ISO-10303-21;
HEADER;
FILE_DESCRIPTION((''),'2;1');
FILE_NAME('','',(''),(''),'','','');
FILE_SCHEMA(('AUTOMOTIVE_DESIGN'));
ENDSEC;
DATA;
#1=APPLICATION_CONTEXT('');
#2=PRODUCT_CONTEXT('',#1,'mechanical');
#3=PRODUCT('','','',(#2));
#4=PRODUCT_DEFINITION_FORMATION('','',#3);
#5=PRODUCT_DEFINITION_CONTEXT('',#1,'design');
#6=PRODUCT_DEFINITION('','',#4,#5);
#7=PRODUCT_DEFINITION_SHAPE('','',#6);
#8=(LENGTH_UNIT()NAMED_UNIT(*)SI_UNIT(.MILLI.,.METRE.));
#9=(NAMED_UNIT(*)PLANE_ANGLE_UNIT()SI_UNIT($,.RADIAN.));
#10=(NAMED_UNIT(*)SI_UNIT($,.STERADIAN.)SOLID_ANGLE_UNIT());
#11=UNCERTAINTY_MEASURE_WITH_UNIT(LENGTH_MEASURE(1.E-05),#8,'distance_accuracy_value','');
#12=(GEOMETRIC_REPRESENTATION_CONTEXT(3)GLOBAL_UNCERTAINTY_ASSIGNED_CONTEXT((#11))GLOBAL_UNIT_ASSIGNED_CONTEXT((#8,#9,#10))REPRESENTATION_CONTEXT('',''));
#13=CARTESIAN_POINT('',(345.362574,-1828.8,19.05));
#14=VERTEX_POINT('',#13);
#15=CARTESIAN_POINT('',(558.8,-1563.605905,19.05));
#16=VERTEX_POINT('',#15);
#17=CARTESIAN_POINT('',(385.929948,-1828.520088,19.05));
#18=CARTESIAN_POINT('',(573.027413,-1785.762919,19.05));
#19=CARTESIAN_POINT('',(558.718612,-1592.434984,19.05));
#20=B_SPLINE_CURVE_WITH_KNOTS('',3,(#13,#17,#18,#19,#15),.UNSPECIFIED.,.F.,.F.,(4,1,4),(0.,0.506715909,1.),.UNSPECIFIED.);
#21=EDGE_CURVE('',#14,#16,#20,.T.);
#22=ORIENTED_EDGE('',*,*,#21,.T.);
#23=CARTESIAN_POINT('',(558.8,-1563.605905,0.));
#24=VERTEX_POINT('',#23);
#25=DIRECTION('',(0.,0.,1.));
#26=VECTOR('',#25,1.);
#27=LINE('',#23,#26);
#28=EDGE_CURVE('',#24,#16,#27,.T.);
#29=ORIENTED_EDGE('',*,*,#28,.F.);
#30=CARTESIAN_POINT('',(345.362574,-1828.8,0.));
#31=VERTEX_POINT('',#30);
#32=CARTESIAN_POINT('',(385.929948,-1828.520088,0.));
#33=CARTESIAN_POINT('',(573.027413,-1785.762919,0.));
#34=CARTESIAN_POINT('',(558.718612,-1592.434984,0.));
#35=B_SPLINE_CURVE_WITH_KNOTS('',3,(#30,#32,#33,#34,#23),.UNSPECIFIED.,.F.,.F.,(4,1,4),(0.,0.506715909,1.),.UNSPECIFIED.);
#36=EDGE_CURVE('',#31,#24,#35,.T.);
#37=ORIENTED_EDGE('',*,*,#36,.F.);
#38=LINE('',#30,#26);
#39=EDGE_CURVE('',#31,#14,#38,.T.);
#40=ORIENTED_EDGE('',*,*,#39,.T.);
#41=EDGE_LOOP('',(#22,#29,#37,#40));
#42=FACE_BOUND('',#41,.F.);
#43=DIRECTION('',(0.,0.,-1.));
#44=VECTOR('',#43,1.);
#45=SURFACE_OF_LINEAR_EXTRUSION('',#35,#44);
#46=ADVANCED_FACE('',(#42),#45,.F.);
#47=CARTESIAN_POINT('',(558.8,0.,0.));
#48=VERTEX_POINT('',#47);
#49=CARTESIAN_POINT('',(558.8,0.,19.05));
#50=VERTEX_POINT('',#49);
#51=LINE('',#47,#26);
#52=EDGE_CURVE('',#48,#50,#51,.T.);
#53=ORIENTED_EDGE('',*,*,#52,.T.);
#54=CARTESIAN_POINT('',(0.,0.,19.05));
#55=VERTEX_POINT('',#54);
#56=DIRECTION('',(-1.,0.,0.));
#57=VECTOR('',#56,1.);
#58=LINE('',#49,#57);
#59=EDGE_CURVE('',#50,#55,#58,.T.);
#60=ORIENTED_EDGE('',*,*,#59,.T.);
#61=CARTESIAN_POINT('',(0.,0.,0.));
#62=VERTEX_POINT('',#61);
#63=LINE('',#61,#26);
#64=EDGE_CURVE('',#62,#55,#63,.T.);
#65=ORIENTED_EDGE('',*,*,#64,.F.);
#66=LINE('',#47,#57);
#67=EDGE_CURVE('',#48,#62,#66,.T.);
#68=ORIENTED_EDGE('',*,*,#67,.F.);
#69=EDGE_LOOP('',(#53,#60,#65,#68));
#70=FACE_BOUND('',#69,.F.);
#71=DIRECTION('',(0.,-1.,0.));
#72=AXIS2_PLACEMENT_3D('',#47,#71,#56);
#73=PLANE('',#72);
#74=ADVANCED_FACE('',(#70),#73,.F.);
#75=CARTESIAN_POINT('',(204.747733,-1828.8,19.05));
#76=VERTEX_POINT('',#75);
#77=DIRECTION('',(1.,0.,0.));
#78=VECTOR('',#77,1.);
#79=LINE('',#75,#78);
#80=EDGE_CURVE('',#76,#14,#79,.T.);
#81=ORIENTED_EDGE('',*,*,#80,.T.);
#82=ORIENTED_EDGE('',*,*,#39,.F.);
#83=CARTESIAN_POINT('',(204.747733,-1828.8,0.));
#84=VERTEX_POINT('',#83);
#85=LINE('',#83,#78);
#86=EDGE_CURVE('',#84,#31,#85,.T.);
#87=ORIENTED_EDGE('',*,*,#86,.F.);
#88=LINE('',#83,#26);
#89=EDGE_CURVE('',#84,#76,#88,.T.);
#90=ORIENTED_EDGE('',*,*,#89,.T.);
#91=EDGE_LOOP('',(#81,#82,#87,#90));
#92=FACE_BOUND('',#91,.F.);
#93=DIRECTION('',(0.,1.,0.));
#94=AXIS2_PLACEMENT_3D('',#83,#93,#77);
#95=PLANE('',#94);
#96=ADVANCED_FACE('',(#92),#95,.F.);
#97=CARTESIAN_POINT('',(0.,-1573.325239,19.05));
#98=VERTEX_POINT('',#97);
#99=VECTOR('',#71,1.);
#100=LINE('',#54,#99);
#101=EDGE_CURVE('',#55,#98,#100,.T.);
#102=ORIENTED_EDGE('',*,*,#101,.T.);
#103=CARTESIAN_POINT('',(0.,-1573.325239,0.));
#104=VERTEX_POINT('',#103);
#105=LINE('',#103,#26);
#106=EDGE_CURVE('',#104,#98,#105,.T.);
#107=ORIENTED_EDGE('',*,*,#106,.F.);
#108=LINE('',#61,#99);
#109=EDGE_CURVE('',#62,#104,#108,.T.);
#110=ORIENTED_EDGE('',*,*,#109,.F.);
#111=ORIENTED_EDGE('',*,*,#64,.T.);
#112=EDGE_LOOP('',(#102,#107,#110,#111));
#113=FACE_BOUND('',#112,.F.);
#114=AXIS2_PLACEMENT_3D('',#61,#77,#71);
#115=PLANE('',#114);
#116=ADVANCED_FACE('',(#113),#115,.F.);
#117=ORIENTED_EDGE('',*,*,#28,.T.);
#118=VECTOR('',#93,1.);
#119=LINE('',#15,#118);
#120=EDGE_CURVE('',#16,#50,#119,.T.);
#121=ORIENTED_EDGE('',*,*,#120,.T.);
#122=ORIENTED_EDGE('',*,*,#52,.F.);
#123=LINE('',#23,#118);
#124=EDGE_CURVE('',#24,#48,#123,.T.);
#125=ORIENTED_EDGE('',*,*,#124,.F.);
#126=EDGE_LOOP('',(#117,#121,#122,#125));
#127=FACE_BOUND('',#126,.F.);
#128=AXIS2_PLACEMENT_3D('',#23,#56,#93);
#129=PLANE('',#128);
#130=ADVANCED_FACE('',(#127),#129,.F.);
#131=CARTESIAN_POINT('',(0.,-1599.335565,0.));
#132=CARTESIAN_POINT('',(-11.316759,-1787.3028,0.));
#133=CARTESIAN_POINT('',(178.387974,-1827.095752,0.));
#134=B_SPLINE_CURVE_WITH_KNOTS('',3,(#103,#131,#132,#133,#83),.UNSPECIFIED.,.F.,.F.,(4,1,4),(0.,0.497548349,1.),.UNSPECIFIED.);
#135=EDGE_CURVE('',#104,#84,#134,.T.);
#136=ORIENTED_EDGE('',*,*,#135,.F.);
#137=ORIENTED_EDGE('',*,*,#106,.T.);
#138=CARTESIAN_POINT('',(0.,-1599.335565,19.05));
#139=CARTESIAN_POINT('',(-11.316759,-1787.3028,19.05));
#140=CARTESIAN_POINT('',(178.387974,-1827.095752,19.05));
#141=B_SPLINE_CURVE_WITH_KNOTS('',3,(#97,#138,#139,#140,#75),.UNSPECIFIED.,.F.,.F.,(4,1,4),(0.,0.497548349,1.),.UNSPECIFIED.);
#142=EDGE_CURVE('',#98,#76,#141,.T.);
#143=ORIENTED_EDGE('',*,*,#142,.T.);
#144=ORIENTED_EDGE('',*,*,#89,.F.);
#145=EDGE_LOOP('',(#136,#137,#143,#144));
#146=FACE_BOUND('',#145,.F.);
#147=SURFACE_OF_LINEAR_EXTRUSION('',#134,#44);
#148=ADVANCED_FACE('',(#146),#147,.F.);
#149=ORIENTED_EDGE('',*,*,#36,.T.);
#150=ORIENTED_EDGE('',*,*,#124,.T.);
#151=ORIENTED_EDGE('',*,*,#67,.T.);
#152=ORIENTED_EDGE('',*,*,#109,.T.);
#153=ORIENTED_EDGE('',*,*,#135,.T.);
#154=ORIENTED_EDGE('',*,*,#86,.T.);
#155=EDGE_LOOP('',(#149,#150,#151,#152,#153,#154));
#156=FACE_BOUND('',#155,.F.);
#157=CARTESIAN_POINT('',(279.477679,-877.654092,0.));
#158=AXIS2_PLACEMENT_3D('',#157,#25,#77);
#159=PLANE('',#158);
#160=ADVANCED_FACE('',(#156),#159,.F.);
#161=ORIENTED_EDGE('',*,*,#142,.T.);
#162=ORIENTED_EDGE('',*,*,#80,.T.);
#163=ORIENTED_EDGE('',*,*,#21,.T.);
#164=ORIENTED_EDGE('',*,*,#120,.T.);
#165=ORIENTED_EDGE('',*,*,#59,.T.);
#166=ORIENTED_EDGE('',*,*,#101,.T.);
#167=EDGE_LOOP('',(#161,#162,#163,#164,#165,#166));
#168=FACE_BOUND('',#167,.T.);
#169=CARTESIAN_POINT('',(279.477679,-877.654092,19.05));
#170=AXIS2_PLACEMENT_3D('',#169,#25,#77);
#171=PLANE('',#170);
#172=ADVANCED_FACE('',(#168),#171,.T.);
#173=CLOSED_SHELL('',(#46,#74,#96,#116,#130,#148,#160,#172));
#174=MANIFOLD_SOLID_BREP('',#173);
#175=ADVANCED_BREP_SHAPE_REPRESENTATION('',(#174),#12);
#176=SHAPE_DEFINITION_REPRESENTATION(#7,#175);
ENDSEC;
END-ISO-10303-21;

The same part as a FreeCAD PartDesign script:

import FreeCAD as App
import Part
import Sketcher
from FreeCAD import Vector

doc = App.newDocument("Part")
params = doc.addObject("Spreadsheet::Sheet", "Params")
for row, (alias, value) in enumerate([
    ("pad1_length", "0.75 in"),
], start=1):
    params.set(f"A{row}", alias)
    params.set(f"B{row}", "=" + value)
    params.setAlias(f"B{row}", alias)

body = doc.addObject("PartDesign::Body", "Body")

# Sketch on XY plane
sketch1 = body.newObject("Sketcher::SketchObject", "Sketch")
sketch1.AttachmentSupport = (doc.getObject("XY_Plane"), [""])
sketch1.MapMode = "FlatFace"
sketch1.addGeometry([
    Part.LineSegment(Vector(558.8, 0, 0), Vector(0, 0, 0)),  # 0
    Part.LineSegment(Vector(0, 0, 0), Vector(0, -1573.325239, 0)),  # 1
    Part.BSplineCurve([Vector(0, -1573.325239, 0), Vector(0, -1599.335565, 0), Vector(-11.316759, -1787.3028, 0), Vector(178.387974, -1827.095752, 0), Vector(204.747733, -1828.8, 0)], [4, 1, 4], [0, 0.497548349, 1], False, 3, [1, 1, 1, 1, 1], False),  # 2
    Part.LineSegment(Vector(204.747733, -1828.8, 0), Vector(345.362574, -1828.8, 0)),  # 3
    Part.BSplineCurve([Vector(345.362574, -1828.8, 0), Vector(385.929948, -1828.520088, 0), Vector(573.027413, -1785.762919, 0), Vector(558.718612, -1592.434984, 0), Vector(558.8, -1563.605905, 0)], [4, 1, 4], [0, 0.506715909, 1], False, 3, [1, 1, 1, 1, 1], False),  # 4
    Part.LineSegment(Vector(558.8, -1563.605905, 0), Vector(558.8, 0, 0)),  # 5
], False)
sketch1.addConstraint([
    Sketcher.Constraint("Block", 2),
    Sketcher.Constraint("Block", 4),
    Sketcher.Constraint("Coincident", 0, 2, 1, 1),
    Sketcher.Constraint("Coincident", 1, 2, 2, 1),
    Sketcher.Constraint("Coincident", 2, 2, 3, 1),
    Sketcher.Constraint("Coincident", 3, 2, 4, 1),
    Sketcher.Constraint("Coincident", 4, 2, 5, 1),
    Sketcher.Constraint("Coincident", 5, 2, 0, 1),
    Sketcher.Constraint("Horizontal", 0),
    Sketcher.Constraint("Vertical", 1),
    Sketcher.Constraint("Vertical", 5),
    Sketcher.Constraint("PointOnObject", 5, 2, -1),
])
pad1 = body.newObject("PartDesign::Pad", "Pad")
pad1.Profile = sketch1
pad1.setExpression("Length", "Params.pad1_length")

doc.recompute()
